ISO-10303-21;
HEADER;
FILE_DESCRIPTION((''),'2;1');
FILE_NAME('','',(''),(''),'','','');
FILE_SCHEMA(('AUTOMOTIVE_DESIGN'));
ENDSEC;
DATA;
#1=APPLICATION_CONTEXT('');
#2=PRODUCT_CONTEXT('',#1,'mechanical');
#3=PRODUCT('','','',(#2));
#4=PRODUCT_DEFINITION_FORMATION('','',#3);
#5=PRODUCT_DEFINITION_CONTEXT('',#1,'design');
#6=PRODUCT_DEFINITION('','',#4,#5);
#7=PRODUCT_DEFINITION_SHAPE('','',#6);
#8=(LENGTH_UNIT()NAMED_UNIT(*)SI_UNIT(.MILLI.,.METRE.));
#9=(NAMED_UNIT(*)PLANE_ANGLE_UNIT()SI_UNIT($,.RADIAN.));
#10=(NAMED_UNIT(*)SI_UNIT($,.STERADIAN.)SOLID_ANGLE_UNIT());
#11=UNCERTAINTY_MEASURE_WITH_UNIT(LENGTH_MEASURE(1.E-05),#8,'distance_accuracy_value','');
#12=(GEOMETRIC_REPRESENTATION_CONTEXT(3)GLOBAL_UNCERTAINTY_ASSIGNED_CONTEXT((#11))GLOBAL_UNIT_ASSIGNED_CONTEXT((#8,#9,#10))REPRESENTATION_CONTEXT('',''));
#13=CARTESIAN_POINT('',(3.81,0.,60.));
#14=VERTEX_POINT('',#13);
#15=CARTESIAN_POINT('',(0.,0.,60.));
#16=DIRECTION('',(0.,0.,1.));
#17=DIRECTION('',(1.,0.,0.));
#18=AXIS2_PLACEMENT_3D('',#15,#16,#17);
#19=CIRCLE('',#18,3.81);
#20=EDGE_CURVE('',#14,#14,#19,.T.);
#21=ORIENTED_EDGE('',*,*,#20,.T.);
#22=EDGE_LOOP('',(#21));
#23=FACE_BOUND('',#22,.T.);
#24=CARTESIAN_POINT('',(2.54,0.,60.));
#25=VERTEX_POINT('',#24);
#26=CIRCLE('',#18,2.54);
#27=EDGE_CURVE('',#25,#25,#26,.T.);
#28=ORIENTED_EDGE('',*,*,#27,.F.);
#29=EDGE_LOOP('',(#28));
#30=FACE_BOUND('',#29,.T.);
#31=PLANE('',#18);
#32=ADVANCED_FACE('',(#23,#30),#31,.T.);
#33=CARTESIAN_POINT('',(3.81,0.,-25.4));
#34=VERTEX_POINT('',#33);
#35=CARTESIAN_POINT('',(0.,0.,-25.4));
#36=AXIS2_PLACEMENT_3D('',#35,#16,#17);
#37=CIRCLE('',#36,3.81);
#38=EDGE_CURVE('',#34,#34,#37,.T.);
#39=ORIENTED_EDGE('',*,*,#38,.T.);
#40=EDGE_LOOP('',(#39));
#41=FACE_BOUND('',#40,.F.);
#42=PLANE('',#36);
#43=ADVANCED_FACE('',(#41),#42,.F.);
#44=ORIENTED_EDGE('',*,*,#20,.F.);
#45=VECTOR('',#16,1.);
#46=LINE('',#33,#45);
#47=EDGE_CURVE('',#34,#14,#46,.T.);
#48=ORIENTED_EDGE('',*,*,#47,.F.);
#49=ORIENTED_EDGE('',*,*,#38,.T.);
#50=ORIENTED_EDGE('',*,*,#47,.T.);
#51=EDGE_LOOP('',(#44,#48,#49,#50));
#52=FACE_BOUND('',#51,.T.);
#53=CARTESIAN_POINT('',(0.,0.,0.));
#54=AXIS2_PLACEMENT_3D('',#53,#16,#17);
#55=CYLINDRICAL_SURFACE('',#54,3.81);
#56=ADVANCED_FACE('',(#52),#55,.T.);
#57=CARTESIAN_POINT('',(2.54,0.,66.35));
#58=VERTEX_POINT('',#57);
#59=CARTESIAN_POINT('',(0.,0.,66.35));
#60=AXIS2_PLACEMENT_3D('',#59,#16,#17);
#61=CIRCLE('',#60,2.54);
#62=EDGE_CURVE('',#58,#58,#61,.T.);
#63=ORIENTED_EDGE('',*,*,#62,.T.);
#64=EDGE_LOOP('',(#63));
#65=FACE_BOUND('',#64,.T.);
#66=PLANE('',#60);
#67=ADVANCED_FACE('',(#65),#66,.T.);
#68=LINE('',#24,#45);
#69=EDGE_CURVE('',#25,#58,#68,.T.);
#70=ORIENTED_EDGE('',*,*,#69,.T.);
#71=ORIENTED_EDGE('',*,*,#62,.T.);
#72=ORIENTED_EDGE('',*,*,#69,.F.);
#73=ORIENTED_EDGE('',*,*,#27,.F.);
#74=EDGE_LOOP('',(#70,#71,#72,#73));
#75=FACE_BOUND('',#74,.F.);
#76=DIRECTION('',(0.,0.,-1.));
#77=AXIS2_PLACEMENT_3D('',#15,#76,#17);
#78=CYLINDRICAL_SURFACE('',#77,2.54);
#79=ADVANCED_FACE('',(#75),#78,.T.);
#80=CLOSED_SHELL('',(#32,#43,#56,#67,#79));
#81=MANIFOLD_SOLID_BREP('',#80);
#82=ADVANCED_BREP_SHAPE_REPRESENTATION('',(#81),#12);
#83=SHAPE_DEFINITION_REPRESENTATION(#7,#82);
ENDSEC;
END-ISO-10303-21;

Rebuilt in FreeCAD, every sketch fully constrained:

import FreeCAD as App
import Part
import Sketcher
Q = App.Units.Quantity

doc = App.newDocument("Part")
params = doc.addObject("Spreadsheet::Sheet", "Params")
for row, (alias, value) in enumerate([
    ("sketch1_diameter", "0.3 in"),
    ("pad1_length", "60 mm"),
    ("pad1_length2", "1 in"),
    ("sketch2_diameter", "0.2 in"),
    ("pad2_length", "0.25 in"),
], start=1):
    params.set(f"A{row}", alias)
    params.set(f"B{row}", "=" + value)
    params.setAlias(f"B{row}", alias)

body = doc.addObject("PartDesign::Body", "Body")

# Sketch on XY plane
sketch1 = doc.addObject("Sketcher::SketchObject", "Sketch")
body.addObject(sketch1)
sketch1.AttachmentSupport = (doc.XY_Plane, [""])
sketch1.MapMode = "FlatFace"
sketch1.addGeometry(Part.Circle(App.Vector(0, 0, 0), App.Vector(0, 0, 1), 3.8), False)
sketch1.addConstraint([
    Sketcher.Constraint("Coincident", 0, 3, -1, 1),
    Sketcher.Constraint("Diameter", 0, Q("0.3 in")),
])
sketch1.setExpression("Constraints[1]", "Params.sketch1_diameter")
pad1 = doc.addObject("PartDesign::Pad", "Pad")
body.addObject(pad1)
pad1.Profile = sketch1
pad1.Type = "TwoLengths"
pad1.setExpression("Length", "Params.pad1_length")
pad1.setExpression("Length2", "Params.pad1_length2")

# Sketch on XY plane
sketch2 = doc.addObject("Sketcher::SketchObject", "Sketch001")
body.addObject(sketch2)
sketch2.AttachmentSupport = (doc.XY_Plane, [""])
sketch2.MapMode = "FlatFace"
sketch2.AttachmentOffset = App.Placement(App.Vector(0, 0, 60), App.Rotation())
sketch2.addGeometry(Part.Circle(App.Vector(0, 0, 0), App.Vector(0, 0, 1), 2.5), False)
sketch2.addConstraint([
    Sketcher.Constraint("Coincident", 0, 3, -1, 1),
    Sketcher.Constraint("Diameter", 0, Q("0.2 in")),
])
sketch2.setExpression("Constraints[1]", "Params.sketch2_diameter")
pad2 = doc.addObject("PartDesign::Pad", "Pad001")
body.addObject(pad2)
pad2.Profile = sketch2
pad2.setExpression("Length", "Params.pad2_length")

doc.recompute()
